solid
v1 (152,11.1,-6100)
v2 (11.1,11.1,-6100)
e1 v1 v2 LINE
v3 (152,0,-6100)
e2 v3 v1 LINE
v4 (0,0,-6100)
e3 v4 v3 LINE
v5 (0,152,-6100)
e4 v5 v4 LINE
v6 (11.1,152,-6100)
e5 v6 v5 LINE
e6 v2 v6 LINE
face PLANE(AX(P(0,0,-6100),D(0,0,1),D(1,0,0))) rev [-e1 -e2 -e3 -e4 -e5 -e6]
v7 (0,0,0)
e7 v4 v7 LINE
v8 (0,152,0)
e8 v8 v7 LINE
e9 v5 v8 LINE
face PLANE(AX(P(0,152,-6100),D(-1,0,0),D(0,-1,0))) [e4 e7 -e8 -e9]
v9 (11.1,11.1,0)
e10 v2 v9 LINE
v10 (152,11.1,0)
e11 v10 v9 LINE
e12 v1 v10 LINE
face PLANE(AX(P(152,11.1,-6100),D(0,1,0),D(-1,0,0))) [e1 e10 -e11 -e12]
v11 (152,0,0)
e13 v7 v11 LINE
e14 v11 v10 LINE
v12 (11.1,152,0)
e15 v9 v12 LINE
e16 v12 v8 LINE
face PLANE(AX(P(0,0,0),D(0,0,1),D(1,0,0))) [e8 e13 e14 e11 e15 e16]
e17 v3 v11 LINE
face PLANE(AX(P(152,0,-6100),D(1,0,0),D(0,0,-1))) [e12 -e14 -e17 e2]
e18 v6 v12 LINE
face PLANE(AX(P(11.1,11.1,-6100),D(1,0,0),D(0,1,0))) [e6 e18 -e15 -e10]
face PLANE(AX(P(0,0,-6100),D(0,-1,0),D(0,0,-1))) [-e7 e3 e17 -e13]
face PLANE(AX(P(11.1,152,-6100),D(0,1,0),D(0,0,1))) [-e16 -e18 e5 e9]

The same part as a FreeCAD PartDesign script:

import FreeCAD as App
import Part
import Sketcher

V = App.Vector
Q = App.Units.Quantity


def add_polygon(sketch, points):
    """Adds a closed chain of lines whose ends are joined by coincident constraints."""
    first, n = sketch.GeometryCount, len(points)
    for a, b in zip(points, points[1:] + points[:1]):
        sketch.addGeometry(Part.LineSegment(App.Vector(*a, 0), App.Vector(*b, 0)), False)
    for i in range(n):
        sketch.addConstraint(Sketcher.Constraint("Coincident", first + i, 2, first + (i + 1) % n, 1))

doc = App.newDocument("Part")
params = doc.addObject("Spreadsheet::Sheet", "Params")
for row, (alias, value) in enumerate([
    ("sketch1_width", "152 mm"),
    ("sketch1_width2", "140.9 mm"),
    ("pad1_length", "6100 mm"),
], start=1):
    params.set(f"A{row}", alias)
    params.set(f"B{row}", "=" + value)
    params.setAlias(f"B{row}", alias)

body = doc.addObject("PartDesign::Body", "Body")

sketch1 = body.newObject("Sketcher::SketchObject", "Sketch")
sketch1.AttachmentSupport = (doc.getObject("XY_Plane"), [""])
sketch1.MapMode = "FlatFace"
add_polygon(sketch1, [(0, 152), (0, 0), (152, 0), (152, 11.1), (11.1, 11.1), (11.1, 152)])
sketch1.addConstraint([
    Sketcher.Constraint("Vertical", 0),
    Sketcher.Constraint("Horizontal", 1),
    Sketcher.Constraint("Vertical", 2),
    Sketcher.Constraint("Horizontal", 3),
    Sketcher.Constraint("Vertical", 4),
    Sketcher.Constraint("Horizontal", 5),
    Sketcher.Constraint("Coincident", 0, 2, -1, 1),
    Sketcher.Constraint("Equal", 1, 0),
    Sketcher.Constraint("Equal", 5, 2),
    Sketcher.Constraint("DistanceX", 1, 1, 1, 2, Q("152 mm")),
    Sketcher.Constraint("DistanceX", 3, 2, 3, 1, Q("140.9 mm")),
])
sketch1.setExpression("Constraints[15]", "Params.sketch1_width")
sketch1.setExpression("Constraints[16]", "Params.sketch1_width2")
pad1 = body.newObject("PartDesign::Pad", "Pad")
pad1.Profile = sketch1
pad1.setExpression("Length", "Params.pad1_length")
pad1.Reversed = True

doc.recompute()
